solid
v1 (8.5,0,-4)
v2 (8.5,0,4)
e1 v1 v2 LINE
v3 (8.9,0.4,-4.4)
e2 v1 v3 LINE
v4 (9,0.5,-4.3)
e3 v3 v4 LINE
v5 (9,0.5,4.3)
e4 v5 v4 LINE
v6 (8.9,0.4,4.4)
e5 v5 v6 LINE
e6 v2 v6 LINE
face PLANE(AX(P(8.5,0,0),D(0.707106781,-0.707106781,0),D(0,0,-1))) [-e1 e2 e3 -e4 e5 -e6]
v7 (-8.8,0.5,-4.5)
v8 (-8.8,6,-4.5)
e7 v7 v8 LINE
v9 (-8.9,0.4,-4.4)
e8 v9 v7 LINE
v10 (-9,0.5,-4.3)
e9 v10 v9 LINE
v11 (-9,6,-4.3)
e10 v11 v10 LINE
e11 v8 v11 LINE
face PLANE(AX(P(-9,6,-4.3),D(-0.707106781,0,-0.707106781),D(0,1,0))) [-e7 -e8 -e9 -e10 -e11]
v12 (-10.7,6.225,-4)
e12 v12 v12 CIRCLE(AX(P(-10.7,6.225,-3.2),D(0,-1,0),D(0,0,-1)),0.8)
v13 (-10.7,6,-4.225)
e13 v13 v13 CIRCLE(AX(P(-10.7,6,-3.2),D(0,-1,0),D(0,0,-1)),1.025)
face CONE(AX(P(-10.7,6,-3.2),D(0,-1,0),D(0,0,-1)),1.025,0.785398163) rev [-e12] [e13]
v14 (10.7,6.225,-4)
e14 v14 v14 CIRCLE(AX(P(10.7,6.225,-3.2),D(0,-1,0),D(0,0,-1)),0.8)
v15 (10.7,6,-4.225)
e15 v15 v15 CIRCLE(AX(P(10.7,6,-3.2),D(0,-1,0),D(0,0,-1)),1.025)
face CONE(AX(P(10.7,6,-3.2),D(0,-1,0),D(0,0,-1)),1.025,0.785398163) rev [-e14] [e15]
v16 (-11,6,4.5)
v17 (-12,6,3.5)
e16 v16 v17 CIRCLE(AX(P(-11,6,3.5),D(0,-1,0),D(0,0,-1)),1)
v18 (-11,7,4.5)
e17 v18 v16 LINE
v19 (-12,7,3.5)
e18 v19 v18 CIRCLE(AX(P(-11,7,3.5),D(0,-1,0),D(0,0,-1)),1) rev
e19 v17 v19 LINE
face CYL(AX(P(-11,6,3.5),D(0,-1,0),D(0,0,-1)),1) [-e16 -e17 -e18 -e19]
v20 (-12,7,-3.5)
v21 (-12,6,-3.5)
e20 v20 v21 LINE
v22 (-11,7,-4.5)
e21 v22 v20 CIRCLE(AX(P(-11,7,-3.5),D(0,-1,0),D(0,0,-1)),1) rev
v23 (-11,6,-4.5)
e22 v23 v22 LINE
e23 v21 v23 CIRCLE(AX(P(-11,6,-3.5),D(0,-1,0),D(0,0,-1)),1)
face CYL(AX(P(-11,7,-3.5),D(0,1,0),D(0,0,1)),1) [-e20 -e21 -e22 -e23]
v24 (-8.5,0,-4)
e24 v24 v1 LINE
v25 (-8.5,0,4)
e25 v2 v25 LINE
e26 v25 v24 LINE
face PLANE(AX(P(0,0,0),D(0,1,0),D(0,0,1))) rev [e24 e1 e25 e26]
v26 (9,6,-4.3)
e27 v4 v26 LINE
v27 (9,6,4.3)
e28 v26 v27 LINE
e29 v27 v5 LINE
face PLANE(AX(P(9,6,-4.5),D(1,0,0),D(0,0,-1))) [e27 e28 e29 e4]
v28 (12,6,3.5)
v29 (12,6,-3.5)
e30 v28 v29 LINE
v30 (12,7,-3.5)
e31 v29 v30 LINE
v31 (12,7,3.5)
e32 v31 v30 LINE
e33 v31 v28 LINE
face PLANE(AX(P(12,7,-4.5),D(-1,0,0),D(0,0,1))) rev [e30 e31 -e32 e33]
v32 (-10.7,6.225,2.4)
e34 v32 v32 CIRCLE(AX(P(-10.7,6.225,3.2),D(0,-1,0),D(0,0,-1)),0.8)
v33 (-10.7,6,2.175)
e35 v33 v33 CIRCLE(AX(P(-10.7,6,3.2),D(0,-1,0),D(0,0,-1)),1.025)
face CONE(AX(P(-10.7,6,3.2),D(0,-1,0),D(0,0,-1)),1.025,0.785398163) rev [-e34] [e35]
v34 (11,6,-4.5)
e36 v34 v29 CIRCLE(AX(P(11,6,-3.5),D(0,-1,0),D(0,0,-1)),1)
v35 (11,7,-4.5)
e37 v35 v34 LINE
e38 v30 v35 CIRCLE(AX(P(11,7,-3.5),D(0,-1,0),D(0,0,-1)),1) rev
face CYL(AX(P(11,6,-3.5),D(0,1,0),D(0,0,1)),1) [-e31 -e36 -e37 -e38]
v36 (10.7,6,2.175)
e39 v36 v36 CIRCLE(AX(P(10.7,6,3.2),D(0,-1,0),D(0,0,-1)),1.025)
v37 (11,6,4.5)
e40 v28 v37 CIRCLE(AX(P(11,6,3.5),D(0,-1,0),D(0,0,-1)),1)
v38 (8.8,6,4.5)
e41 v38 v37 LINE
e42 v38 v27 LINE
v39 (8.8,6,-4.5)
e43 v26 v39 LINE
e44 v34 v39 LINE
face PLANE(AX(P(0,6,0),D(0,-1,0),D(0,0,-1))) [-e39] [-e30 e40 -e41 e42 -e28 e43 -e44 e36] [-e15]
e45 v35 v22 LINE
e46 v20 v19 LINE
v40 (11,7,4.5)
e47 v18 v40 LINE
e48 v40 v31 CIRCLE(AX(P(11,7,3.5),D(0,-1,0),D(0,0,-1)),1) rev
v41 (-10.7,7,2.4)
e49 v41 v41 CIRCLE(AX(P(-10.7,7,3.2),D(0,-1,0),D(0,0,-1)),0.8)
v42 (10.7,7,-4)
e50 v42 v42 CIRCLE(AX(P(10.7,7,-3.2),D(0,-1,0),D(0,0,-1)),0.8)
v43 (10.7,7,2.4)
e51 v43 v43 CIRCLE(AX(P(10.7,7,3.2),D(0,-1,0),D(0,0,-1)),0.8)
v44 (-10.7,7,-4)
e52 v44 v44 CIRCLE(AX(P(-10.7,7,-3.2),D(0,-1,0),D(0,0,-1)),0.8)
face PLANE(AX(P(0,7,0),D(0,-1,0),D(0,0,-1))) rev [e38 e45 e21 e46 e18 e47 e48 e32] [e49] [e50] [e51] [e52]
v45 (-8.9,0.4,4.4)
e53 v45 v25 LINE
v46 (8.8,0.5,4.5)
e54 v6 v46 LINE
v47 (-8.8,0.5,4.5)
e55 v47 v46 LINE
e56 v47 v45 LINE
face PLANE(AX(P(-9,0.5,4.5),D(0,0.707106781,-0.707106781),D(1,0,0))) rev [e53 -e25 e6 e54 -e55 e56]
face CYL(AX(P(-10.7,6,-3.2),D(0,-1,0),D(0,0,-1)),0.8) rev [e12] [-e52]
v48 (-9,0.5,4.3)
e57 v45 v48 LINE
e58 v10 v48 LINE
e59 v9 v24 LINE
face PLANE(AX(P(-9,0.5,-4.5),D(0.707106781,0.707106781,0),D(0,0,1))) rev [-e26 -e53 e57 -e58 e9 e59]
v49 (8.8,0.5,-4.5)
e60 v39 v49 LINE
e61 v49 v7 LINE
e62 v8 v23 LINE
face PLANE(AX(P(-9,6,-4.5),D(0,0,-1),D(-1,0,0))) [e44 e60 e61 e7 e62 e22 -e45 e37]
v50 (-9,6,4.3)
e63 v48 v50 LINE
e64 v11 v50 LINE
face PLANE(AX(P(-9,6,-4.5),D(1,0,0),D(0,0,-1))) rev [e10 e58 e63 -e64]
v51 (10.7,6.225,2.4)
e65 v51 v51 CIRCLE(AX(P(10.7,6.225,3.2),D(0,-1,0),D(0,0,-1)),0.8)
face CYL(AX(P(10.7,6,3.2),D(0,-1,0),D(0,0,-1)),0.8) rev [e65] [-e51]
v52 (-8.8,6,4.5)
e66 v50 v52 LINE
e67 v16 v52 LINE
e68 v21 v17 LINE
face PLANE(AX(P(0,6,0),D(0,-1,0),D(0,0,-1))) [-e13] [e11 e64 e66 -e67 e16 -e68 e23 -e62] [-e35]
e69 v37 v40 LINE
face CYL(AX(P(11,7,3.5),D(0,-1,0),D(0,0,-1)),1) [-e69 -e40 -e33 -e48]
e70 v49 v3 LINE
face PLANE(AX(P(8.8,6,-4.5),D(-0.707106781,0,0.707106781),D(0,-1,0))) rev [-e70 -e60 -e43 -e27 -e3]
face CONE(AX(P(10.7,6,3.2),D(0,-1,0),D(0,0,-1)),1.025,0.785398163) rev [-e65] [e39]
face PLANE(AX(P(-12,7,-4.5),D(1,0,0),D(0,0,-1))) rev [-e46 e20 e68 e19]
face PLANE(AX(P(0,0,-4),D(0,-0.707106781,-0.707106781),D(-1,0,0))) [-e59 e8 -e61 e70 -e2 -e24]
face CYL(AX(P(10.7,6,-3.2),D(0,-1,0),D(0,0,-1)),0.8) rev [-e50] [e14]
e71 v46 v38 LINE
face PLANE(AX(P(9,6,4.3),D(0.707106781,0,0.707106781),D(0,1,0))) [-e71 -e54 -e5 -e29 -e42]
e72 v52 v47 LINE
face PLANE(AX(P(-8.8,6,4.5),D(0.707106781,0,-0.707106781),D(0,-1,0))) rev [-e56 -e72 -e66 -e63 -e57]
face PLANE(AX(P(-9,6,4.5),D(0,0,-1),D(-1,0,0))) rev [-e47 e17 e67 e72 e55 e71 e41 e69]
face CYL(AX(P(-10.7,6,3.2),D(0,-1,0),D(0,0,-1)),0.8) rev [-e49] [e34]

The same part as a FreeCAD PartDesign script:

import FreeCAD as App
import Part
import Sketcher

V = App.Vector
Q = App.Units.Quantity


def edges_at(feature, points):
    """Names of the edges that pass closest to the given points."""
    edges = feature.Shape.Edges
    near = lambda p: min(range(len(edges)), key=lambda i: edges[i].distToShape(Part.Vertex(*p))[0])
    return sorted({f"Edge{near(p) + 1}" for p in points})

doc = App.newDocument("Part")
body = doc.addObject("PartDesign::Body", "Body")

sketch1 = body.newObject("Sketcher::SketchObject", "Sketch")
sketch1.AttachmentSupport = (doc.getObject("XZ_Plane"), [""])
sketch1.MapMode = "FlatFace"
sketch1.addGeometry([
    Part.LineSegment(V(-9, -4, 0), V(-9, 4, 0)),
    Part.LineSegment(V(-9, 4, 0), V(9, 4, 0)),
    Part.LineSegment(V(9, 4, 0), V(9, -4, 0)),
    Part.LineSegment(V(9, -4, 0), V(-9, -4, 0)),
], False)
sketch1.addConstraint([
    Sketcher.Constraint("Coincident", 0, 2, 1, 1),
    Sketcher.Constraint("Coincident", 1, 2, 2, 1),
    Sketcher.Constraint("Coincident", 2, 2, 3, 1),
    Sketcher.Constraint("Coincident", 3, 2, 0, 1),
    Sketcher.Constraint("Vertical", 0),
    Sketcher.Constraint("Horizontal", 1),
    Sketcher.Constraint("Vertical", 2),
    Sketcher.Constraint("Horizontal", 3),
    Sketcher.Constraint("Symmetric", 0, 2, 2, 2, -1, 1),
    Sketcher.Constraint("DistanceX", 1, 1, 1, 2, 18.0),
    Sketcher.Constraint("DistanceY", 0, 1, 0, 2, 9.0),
])
pad1 = body.newObject("PartDesign::Pad", "Pad")
pad1.Profile = sketch1
pad1.Length = 6
pad1.Reversed = True

sketch2 = body.newObject("Sketcher::SketchObject", "Sketch001")
sketch2.AttachmentSupport = (doc.getObject("XZ_Plane"), [""])
sketch2.MapMode = "FlatFace"
sketch2.AttachmentOffset = App.Placement(V(0, 0, -6), App.Rotation())
sketch2.addGeometry([
    Part.LineSegment(V(-12, -4, 0), V(-12, 4, 0)),
    Part.LineSegment(V(-12, 4, 0), V(12, 4, 0)),
    Part.LineSegment(V(12, 4, 0), V(12, -4, 0)),
    Part.LineSegment(V(12, -4, 0), V(-12, -4, 0)),
], False)
sketch2.addConstraint([
    Sketcher.Constraint("Coincident", 0, 2, 1, 1),
    Sketcher.Constraint("Coincident", 1, 2, 2, 1),
    Sketcher.Constraint("Coincident", 2, 2, 3, 1),
    Sketcher.Constraint("Coincident", 3, 2, 0, 1),
    Sketcher.Constraint("Vertical", 0),
    Sketcher.Constraint("Horizontal", 1),
    Sketcher.Constraint("Vertical", 2),
    Sketcher.Constraint("Horizontal", 3),
    Sketcher.Constraint("Symmetric", 0, 2, 2, 2, -1, 1),
    Sketcher.Constraint("DistanceX", 1, 1, 1, 2, 24.0),
    Sketcher.Constraint("DistanceY", 0, 1, 0, 2, 9.0),
])
pad2 = body.newObject("PartDesign::Pad", "Pad001")
pad2.Profile = sketch2
pad2.Length = 1
pad2.Reversed = True
doc.recompute()

fillet = body.newObject("PartDesign::Fillet", "Fillet")
fillet.Base = (pad2, edges_at(pad2, [
    (-12, 6.5, -4.5),
    (-12, 6.5, 4.5),
    (12, 6.5, 4.5),
    (12, 6.5, -4.5),
]))
fillet.Radius = 1
doc.recompute()

chamfer = body.newObject("PartDesign::Chamfer", "Chamfer")
chamfer.Base = (fillet, edges_at(fillet, [
    (0, 0, -4.5),
    (9, 0, 0),
    (0, 0, 4.5),
    (-9, 0, 0),
]))
chamfer.Size = 0.5
doc.recompute()

chamfer2 = body.newObject("PartDesign::Chamfer", "Chamfer001")
chamfer2.Base = (chamfer, edges_at(chamfer, [
    (-9, 3.25, -4.5),
    (9, 3.25, -4.5),
    (9, 3.25, 4.5),
    (-9, 3.25, 4.5),
]))
chamfer2.Size = 0.2

sketch3 = body.newObject("Sketcher::SketchObject", "Sketch002")
sketch3.AttachmentSupport = (doc.getObject("YZ_Plane"), [""])
sketch3.MapMode = "FlatFace"
sketch3.AttachmentOffset = App.Placement(V(0, 0, -10.7), App.Rotation())
sketch3.addGeometry([
    Part.LineSegment(V(7, -3.2, 0), V(6, -3.2, 0)),
    Part.LineSegment(V(6, -3.2, 0), V(6, -4.22, 0)),
    Part.LineSegment(V(6, -4.22, 0), V(6.22, -4, 0)),
    Part.LineSegment(V(6.22, -4, 0), V(7, -4, 0)),
    Part.LineSegment(V(7, -4, 0), V(7, -3.2, 0)),
], False)
sketch3.addGeometry(Part.LineSegment(V(6, -3.2, 0), V(7, -3.2, 0)), True)
sketch3.addConstraint([
    Sketcher.Constraint("Coincident", 0, 2, 1, 1),
    Sketcher.Constraint("Coincident", 1, 2, 2, 1),
    Sketcher.Constraint("Coincident", 2, 2, 3, 1),
    Sketcher.Constraint("Coincident", 3, 2, 4, 1),
    Sketcher.Constraint("Coincident", 4, 2, 0, 1),
    Sketcher.Constraint("Horizontal", 0),
    Sketcher.Constraint("Vertical", 1),
    Sketcher.Constraint("Horizontal", 3),
    Sketcher.Constraint("Vertical", 4),
    Sketcher.Constraint("Horizontal", 5),
    Sketcher.Constraint("Coincident", 5, 1, 0, 2),
    Sketcher.Constraint("Vertical", 3, 2, 5, 2),
    Sketcher.Constraint("DistanceX", 0, 2, 0, 1, 1.0),
    Sketcher.Constraint("Angle", 2, Q("45 deg")),
    Sketcher.Constraint("DistanceY", 4, 1, 4, 2, 0.8),
    Sketcher.Constraint("DistanceX", -1, 1, 0, 2, 6.0),
    Sketcher.Constraint("DistanceY", 2, 2, -1, 1, 4.0),
    Sketcher.Constraint("DistanceX", 3, 1, 3, 2, 0.775),
])
groove = body.newObject("PartDesign::Groove", "Groove")
groove.Profile = sketch3
groove.ReferenceAxis = (sketch3, ["Axis0"])
groove.Angle = 360
doc.recompute()

linearpattern = body.newObject("PartDesign::LinearPattern", "LinearPattern")
linearpattern.Originals = [groove]
linearpattern.Direction = (doc.getObject("Z_Axis"), [""])
linearpattern.Mode = "offset"
linearpattern.Offset = 6.4
linearpattern.Occurrences = 2
body.Tip = linearpattern
doc.recompute()

datumline = body.newObject("PartDesign::Line", "DatumLine")
datumline.Placement = App.Placement(V(0, 0, 0), App.Rotation(V(0, 0, 1), V(0.958072372, 0, 0.286526317)))
linearpattern2 = body.newObject("PartDesign::LinearPattern", "LinearPattern001")
linearpattern2.Originals = [groove]
linearpattern2.Direction = (datumline, [""])
linearpattern2.Mode = "offset"
linearpattern2.Offset = 22.336517
linearpattern2.Occurrences = 2
body.Tip = linearpattern2
doc.recompute()

linearpattern3 = body.newObject("PartDesign::LinearPattern", "LinearPattern002")
linearpattern3.Originals = [groove]
linearpattern3.Direction = (doc.getObject("X_Axis"), [""])
linearpattern3.Mode = "offset"
linearpattern3.Offset = 21.4
linearpattern3.Occurrences = 2
body.Tip = linearpattern3

doc.recompute()
